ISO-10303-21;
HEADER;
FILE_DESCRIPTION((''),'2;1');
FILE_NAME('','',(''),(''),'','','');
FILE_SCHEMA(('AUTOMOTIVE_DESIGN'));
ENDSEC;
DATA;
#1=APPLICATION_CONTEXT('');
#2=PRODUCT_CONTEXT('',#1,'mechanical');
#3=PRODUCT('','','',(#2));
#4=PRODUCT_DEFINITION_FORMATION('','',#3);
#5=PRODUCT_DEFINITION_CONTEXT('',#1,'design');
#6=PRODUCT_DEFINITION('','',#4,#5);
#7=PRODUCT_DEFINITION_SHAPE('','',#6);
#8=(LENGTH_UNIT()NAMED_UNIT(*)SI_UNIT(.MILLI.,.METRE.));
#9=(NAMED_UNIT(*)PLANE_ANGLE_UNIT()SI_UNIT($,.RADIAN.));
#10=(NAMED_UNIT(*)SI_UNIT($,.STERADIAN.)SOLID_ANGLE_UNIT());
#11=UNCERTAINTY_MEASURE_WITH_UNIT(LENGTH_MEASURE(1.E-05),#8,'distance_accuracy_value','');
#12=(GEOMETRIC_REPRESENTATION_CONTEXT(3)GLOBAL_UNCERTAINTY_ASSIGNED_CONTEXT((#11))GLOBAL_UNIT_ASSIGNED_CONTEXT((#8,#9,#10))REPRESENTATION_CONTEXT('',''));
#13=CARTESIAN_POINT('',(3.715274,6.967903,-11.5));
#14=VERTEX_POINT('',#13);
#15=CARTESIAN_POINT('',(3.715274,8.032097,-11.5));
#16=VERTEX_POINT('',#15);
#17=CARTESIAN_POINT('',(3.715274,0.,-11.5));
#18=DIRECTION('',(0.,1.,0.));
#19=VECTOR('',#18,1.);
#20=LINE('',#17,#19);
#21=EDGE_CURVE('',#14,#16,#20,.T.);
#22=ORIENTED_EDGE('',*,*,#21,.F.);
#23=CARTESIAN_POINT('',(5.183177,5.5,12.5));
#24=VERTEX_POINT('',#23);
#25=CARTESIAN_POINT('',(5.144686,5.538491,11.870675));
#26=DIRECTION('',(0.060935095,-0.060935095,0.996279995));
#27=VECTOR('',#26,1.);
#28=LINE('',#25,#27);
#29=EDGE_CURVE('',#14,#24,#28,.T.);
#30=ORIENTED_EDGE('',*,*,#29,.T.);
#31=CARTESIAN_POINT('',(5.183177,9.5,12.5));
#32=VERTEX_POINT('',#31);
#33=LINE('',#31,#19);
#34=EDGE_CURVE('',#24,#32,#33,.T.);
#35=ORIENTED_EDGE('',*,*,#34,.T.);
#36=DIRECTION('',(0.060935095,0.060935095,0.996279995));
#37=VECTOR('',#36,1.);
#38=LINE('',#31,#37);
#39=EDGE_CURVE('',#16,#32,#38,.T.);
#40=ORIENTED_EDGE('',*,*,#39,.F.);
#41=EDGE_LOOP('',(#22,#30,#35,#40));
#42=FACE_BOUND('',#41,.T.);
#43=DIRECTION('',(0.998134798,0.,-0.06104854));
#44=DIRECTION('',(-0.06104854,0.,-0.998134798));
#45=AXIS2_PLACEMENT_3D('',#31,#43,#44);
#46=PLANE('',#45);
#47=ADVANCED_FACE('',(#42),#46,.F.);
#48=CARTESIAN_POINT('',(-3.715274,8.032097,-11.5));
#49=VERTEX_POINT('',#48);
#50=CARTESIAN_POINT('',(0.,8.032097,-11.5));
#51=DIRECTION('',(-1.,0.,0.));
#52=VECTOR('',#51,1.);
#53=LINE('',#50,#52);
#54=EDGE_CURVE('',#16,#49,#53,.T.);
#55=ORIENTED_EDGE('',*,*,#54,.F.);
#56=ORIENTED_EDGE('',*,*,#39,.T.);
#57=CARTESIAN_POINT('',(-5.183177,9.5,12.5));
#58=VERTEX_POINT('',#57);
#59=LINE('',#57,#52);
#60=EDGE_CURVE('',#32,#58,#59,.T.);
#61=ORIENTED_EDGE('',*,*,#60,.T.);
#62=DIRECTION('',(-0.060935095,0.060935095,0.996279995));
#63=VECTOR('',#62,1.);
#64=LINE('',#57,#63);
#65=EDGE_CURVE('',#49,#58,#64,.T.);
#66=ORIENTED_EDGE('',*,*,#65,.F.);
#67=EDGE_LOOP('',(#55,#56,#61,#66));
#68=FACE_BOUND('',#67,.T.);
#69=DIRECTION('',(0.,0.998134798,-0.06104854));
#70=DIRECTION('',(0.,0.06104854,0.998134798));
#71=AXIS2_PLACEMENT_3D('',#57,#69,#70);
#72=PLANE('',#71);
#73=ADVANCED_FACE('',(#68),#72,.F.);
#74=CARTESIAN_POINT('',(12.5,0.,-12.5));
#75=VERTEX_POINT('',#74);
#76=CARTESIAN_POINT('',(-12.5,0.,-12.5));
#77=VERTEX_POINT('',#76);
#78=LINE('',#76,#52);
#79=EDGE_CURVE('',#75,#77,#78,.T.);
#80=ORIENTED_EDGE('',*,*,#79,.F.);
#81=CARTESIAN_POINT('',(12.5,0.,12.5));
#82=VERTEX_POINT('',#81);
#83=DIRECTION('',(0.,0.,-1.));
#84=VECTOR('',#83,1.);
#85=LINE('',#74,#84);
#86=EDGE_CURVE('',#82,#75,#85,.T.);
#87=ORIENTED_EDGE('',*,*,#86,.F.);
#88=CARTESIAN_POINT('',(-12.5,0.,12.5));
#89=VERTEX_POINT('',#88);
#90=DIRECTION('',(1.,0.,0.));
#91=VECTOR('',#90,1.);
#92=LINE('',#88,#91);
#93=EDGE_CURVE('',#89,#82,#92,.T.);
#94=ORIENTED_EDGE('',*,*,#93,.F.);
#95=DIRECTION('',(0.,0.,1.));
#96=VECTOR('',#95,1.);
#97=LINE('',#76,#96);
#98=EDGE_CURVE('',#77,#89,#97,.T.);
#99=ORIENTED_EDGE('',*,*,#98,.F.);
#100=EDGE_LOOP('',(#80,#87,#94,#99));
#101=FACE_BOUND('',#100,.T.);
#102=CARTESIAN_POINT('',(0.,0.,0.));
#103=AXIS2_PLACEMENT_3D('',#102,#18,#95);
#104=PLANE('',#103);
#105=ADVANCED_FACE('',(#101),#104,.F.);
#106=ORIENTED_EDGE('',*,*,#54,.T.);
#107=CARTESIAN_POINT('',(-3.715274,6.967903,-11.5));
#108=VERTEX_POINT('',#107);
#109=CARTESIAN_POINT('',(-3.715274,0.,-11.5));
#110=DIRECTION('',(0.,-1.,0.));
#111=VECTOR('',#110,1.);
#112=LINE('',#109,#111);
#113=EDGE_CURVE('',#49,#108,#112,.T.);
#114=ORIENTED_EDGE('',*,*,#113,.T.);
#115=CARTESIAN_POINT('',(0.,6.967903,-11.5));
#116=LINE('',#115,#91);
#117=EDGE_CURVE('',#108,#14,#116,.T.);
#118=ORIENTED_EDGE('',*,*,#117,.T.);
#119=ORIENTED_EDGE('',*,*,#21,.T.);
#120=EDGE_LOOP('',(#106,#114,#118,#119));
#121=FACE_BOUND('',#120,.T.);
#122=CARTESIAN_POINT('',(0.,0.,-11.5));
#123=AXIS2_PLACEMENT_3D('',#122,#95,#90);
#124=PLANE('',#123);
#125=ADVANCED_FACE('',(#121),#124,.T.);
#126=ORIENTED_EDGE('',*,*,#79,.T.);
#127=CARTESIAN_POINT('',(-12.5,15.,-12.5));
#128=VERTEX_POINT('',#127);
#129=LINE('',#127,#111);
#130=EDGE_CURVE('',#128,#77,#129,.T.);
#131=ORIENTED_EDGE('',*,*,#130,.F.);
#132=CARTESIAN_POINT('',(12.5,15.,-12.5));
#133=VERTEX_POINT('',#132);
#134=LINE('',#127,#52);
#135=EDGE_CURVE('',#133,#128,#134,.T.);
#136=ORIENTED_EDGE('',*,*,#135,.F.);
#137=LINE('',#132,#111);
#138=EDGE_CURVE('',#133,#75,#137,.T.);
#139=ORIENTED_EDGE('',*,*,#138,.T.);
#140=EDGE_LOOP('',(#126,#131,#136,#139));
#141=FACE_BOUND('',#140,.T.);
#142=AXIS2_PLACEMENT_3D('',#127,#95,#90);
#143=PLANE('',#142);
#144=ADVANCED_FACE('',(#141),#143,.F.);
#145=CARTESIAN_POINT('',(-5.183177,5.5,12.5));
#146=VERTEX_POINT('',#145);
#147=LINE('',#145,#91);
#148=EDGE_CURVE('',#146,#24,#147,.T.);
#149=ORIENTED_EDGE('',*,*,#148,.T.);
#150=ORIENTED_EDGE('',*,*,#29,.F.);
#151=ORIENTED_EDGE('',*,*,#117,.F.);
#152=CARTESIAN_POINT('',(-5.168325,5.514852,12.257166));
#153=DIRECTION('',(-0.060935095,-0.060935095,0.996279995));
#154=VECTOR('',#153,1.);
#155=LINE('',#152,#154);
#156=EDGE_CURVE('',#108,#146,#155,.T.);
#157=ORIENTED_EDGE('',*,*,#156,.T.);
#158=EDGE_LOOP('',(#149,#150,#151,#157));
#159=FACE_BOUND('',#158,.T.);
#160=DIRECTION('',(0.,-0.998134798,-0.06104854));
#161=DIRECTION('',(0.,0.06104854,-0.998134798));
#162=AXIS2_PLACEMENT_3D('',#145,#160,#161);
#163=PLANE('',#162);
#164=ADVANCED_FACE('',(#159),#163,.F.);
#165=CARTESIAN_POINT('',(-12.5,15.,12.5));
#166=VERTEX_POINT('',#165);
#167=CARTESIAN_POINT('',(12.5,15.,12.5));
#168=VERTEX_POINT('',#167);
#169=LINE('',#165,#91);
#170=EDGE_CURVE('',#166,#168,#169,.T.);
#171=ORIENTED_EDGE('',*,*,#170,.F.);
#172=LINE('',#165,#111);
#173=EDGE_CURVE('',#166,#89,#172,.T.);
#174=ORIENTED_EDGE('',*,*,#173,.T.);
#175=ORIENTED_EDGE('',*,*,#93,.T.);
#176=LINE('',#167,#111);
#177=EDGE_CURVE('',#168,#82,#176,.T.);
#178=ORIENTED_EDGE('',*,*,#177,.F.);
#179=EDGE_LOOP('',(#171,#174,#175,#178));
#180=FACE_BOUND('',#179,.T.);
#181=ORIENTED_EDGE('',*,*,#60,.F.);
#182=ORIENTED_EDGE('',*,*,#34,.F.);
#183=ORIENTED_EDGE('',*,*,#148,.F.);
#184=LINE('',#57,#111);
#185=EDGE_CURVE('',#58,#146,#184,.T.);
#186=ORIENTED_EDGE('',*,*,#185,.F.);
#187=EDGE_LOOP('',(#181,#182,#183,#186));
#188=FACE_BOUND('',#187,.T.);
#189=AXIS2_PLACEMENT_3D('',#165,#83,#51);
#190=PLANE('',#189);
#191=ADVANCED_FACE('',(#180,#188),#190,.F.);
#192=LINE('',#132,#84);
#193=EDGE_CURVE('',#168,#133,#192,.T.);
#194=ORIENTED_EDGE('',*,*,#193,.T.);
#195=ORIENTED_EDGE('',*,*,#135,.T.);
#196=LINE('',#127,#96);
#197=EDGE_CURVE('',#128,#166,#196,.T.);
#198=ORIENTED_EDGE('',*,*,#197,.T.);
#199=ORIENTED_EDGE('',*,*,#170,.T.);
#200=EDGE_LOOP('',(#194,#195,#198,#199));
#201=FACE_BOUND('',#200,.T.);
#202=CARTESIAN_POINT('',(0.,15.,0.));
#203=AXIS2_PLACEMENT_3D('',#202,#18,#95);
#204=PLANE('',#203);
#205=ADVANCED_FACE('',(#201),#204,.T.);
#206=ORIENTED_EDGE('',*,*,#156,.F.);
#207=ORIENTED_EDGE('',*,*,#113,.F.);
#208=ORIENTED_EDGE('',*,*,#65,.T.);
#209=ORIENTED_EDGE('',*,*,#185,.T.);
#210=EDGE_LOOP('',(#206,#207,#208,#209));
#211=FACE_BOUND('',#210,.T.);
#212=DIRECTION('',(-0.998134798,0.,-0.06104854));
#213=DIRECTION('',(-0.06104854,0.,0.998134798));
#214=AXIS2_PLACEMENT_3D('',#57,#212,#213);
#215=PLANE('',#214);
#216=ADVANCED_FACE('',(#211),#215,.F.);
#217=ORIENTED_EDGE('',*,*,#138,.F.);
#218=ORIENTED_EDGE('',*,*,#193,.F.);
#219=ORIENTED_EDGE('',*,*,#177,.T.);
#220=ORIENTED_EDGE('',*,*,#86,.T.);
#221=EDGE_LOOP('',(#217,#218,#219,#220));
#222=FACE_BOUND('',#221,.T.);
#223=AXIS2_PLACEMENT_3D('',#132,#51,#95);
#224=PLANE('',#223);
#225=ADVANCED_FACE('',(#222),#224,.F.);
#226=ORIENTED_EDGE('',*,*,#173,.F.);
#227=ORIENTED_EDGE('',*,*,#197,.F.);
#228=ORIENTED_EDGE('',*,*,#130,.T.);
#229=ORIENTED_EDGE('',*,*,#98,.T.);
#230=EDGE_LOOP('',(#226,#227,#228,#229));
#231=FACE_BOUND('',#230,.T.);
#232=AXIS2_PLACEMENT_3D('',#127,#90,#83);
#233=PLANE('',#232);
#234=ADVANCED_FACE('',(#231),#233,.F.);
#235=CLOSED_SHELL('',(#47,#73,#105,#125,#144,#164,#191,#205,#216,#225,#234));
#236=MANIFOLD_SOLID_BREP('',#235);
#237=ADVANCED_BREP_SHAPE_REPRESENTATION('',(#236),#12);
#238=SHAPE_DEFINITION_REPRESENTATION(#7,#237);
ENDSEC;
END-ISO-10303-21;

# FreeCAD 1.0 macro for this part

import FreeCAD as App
import Part
import Sketcher

V = App.Vector
Q = App.Units.Quantity


def faces_at(feature, points):
    """Names of the faces that lie closest to the given points."""
    faces = feature.Shape.Faces
    near = lambda p: min(range(len(faces)), key=lambda i: faces[i].distToShape(Part.Vertex(*p))[0])
    return sorted({f"Face{near(p) + 1}" for p in points})


def add_polygon(sketch, points):
    """Adds a closed chain of lines whose ends are joined by coincident constraints."""
    first, n = sketch.GeometryCount, len(points)
    for a, b in zip(points, points[1:] + points[:1]):
        sketch.addGeometry(Part.LineSegment(App.Vector(*a, 0), App.Vector(*b, 0)), False)
    for i in range(n):
        sketch.addConstraint(Sketcher.Constraint("Coincident", first + i, 2, first + (i + 1) % n, 1))

doc = App.newDocument("Part")
body = doc.addObject("PartDesign::Body", "Body")

# Sketch on XZ plane
sketch1 = body.newObject("Sketcher::SketchObject", "Sketch")
sketch1.AttachmentSupport = (doc.getObject("XZ_Plane"), [""])
sketch1.MapMode = "FlatFace"
add_polygon(sketch1, [(-12.5, -12.5), (-12.5, 12.5), (12.5, 12.5), (12.5, -12.5)])  # lines 0-3
sketch1.addConstraint([
    Sketcher.Constraint("Vertical", 0),
    Sketcher.Constraint("Horizontal", 1),
    Sketcher.Constraint("Vertical", 2),
    Sketcher.Constraint("Horizontal", 3),
    Sketcher.Constraint("Symmetric", 0, 2, 2, 2, -1, 1),
    Sketcher.Constraint("Equal", 3, 0),
    Sketcher.Constraint("DistanceX", 1, 1, 1, 2, Q("25 mm")),
])
pad1 = body.newObject("PartDesign::Pad", "Pad")
pad1.Profile = sketch1
pad1.Length = 15
pad1.Reversed = True
body2 = doc.addObject("PartDesign::Body", "Body001")

# Sketch on XY plane
sketch2 = body2.newObject("Sketcher::SketchObject", "Sketch001")
sketch2.AttachmentSupport = (doc.getObject("XY_Plane001"), [""])
sketch2.MapMode = "FlatFace"
sketch2.AttachmentOffset = App.Placement(V(0, 0, 12.5), App.Rotation())
add_polygon(sketch2, [(-5.183177, 9.5), (-5.183177, 5.5), (5.183177, 5.5), (5.183177, 9.5)])  # lines 0-3
sketch2.addConstraint([
    Sketcher.Constraint("Vertical", 0),
    Sketcher.Constraint("Horizontal", 1),
    Sketcher.Constraint("Vertical", 2),
    Sketcher.Constraint("Horizontal", 3),
    Sketcher.Constraint("DistanceY", 0, 2, 0, 1, Q("4 mm")),
    Sketcher.Constraint("DistanceY", -1, 1, 0, 2, Q("5.5 mm")),
    Sketcher.Constraint("DistanceX", 1, 1, 1, 2, Q("10.366354 mm")),
    Sketcher.Constraint("DistanceX", 0, 2, -1, 1, Q("5.183177 mm")),
])
pad2 = body2.newObject("PartDesign::Pad", "Pad001")
pad2.Profile = sketch2
pad2.Length = 24
pad2.Reversed = True
doc.recompute()

datumplane = body2.newObject("PartDesign::Plane", "DatumPlane")
datumplane.AttachmentSupport = (doc.getObject("XY_Plane001"), [""])
datumplane.MapMode = "FlatFace"
datumplane.AttachmentOffset = App.Placement(V(0, 0, 12.5), App.Rotation())
draft = body2.newObject("PartDesign::Draft", "Draft")
draft.Base = (pad2, faces_at(pad2, [
    (-5.183, 7.5, 0.5),
    (0, 5.5, 0.5),
    (5.183, 7.5, 0.5),
    (0, 9.5, 0.5),
]))
draft.NeutralPlane = (datumplane, [""])
draft.Angle = 3.5
draft.Reversed = True
doc.recompute()

boolean = body.newObject("PartDesign::Boolean", "Boolean")
boolean.Type = "Cut"
boolean.addObjects([body2])

doc.recompute()
